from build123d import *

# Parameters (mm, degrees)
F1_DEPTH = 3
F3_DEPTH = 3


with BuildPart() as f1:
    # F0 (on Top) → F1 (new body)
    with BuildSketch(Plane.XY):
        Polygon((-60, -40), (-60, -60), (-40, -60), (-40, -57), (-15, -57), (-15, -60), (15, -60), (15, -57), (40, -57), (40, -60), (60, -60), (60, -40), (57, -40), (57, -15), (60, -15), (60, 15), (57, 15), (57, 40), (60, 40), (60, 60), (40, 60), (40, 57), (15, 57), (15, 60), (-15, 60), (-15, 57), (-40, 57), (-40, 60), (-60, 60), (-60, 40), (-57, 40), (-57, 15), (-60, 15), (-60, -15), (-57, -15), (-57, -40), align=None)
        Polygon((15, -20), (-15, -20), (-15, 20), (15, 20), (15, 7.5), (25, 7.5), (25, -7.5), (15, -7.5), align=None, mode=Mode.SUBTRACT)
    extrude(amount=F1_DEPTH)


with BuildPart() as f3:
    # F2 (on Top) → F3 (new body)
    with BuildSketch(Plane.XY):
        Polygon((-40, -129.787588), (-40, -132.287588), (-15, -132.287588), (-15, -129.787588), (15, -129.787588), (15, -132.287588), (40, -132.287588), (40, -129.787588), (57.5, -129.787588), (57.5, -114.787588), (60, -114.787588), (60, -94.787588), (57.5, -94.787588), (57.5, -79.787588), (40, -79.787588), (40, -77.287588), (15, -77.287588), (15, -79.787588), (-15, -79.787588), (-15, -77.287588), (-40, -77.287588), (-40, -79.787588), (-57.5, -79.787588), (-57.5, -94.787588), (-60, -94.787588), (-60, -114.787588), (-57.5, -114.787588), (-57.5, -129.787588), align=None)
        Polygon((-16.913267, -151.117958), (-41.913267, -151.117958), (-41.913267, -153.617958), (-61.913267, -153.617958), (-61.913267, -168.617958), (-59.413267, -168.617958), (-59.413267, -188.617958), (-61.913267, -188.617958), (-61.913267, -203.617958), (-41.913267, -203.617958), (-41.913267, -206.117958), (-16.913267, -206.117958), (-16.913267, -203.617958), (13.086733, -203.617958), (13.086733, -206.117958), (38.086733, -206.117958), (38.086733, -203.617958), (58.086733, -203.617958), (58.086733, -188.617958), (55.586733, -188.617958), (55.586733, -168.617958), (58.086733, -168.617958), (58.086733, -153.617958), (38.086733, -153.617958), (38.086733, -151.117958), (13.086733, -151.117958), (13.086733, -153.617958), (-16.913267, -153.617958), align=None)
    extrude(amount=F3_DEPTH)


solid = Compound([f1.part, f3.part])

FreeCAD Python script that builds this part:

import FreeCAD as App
import Part
import Sketcher

doc = App.newDocument("Part")
body = doc.addObject("PartDesign::Body", "Body")

# Sketch on XY plane
sketch1 = doc.addObject("Sketcher::SketchObject", "Sketch")
body.addObject(sketch1)
sketch1.AttachmentSupport = (doc.XY_Plane, [""])
sketch1.MapMode = "FlatFace"
sketch1.addGeometry([
    Part.LineSegment(App.Vector(-60, -40, 0), App.Vector(-60, -60, 0)),  # 0
    Part.LineSegment(App.Vector(-60, -60, 0), App.Vector(-40, -60, 0)),  # 1
    Part.LineSegment(App.Vector(-40, -60, 0), App.Vector(-40, -57, 0)),  # 2
    Part.LineSegment(App.Vector(-40, -57, 0), App.Vector(-15, -57, 0)),  # 3
    Part.LineSegment(App.Vector(-15, -57, 0), App.Vector(-15, -60, 0)),  # 4
    Part.LineSegment(App.Vector(-15, -60, 0), App.Vector(15, -60, 0)),  # 5
    Part.LineSegment(App.Vector(15, -60, 0), App.Vector(15, -57, 0)),  # 6
    Part.LineSegment(App.Vector(15, -57, 0), App.Vector(40, -57, 0)),  # 7
    Part.LineSegment(App.Vector(40, -57, 0), App.Vector(40, -60, 0)),  # 8
    Part.LineSegment(App.Vector(40, -60, 0), App.Vector(60, -60, 0)),  # 9
    Part.LineSegment(App.Vector(60, -60, 0), App.Vector(60, -40, 0)),  # 10
    Part.LineSegment(App.Vector(60, -40, 0), App.Vector(57, -40, 0)),  # 11
    Part.LineSegment(App.Vector(57, -40, 0), App.Vector(57, -15, 0)),  # 12
    Part.LineSegment(App.Vector(57, -15, 0), App.Vector(60, -15, 0)),  # 13
    Part.LineSegment(App.Vector(60, -15, 0), App.Vector(60, 15, 0)),  # 14
    Part.LineSegment(App.Vector(60, 15, 0), App.Vector(57, 15, 0)),  # 15
    Part.LineSegment(App.Vector(57, 15, 0), App.Vector(57, 40, 0)),  # 16
    Part.LineSegment(App.Vector(57, 40, 0), App.Vector(60, 40, 0)),  # 17
    Part.LineSegment(App.Vector(60, 40, 0), App.Vector(60, 60, 0)),  # 18
    Part.LineSegment(App.Vector(60, 60, 0), App.Vector(40, 60, 0)),  # 19
    Part.LineSegment(App.Vector(40, 60, 0), App.Vector(40, 57, 0)),  # 20
    Part.LineSegment(App.Vector(40, 57, 0), App.Vector(15, 57, 0)),  # 21
    Part.LineSegment(App.Vector(15, 57, 0), App.Vector(15, 60, 0)),  # 22
    Part.LineSegment(App.Vector(15, 60, 0), App.Vector(-15, 60, 0)),  # 23
    Part.LineSegment(App.Vector(-15, 60, 0), App.Vector(-15, 57, 0)),  # 24
    Part.LineSegment(App.Vector(-15, 57, 0), App.Vector(-40, 57, 0)),  # 25
    Part.LineSegment(App.Vector(-40, 57, 0), App.Vector(-40, 60, 0)),  # 26
    Part.LineSegment(App.Vector(-40, 60, 0), App.Vector(-60, 60, 0)),  # 27
    Part.LineSegment(App.Vector(-60, 60, 0), App.Vector(-60, 40, 0)),  # 28
    Part.LineSegment(App.Vector(-60, 40, 0), App.Vector(-57, 40, 0)),  # 29
    Part.LineSegment(App.Vector(-57, 40, 0), App.Vector(-57, 15, 0)),  # 30
    Part.LineSegment(App.Vector(-57, 15, 0), App.Vector(-60, 15, 0)),  # 31
    Part.LineSegment(App.Vector(-60, 15, 0), App.Vector(-60, -15, 0)),  # 32
    Part.LineSegment(App.Vector(-60, -15, 0), App.Vector(-57, -15, 0)),  # 33
    Part.LineSegment(App.Vector(-57, -15, 0), App.Vector(-57, -40, 0)),  # 34
    Part.LineSegment(App.Vector(-57, -40, 0), App.Vector(-60, -40, 0)),  # 35
    Part.LineSegment(App.Vector(15, -7.5, 0), App.Vector(15, -20, 0)),  # 36
    Part.LineSegment(App.Vector(15, -20, 0), App.Vector(-15, -20, 0)),  # 37
    Part.LineSegment(App.Vector(-15, -20, 0), App.Vector(-15, 20, 0)),  # 38
    Part.LineSegment(App.Vector(-15, 20, 0), App.Vector(15, 20, 0)),  # 39
    Part.LineSegment(App.Vector(15, 20, 0), App.Vector(15, 7.5, 0)),  # 40
    Part.LineSegment(App.Vector(15, 7.5, 0), App.Vector(25, 7.5, 0)),  # 41
    Part.LineSegment(App.Vector(25, 7.5, 0), App.Vector(25, -7.5, 0)),  # 42
    Part.LineSegment(App.Vector(25, -7.5, 0), App.Vector(15, -7.5, 0)),  # 43
], False)
sketch1.addConstraint([
    Sketcher.Constraint("Coincident", 0, 2, 1, 1),
    Sketcher.Constraint("Coincident", 1, 2, 2, 1),
    Sketcher.Constraint("Coincident", 2, 2, 3, 1),
    Sketcher.Constraint("Coincident", 3, 2, 4, 1),
    Sketcher.Constraint("Coincident", 4, 2, 5, 1),
    Sketcher.Constraint("Coincident", 5, 2, 6, 1),
    Sketcher.Constraint("Coincident", 6, 2, 7, 1),
    Sketcher.Constraint("Coincident", 7, 2, 8, 1),
    Sketcher.Constraint("Coincident", 8, 2, 9, 1),
    Sketcher.Constraint("Coincident", 9, 2, 10, 1),
    Sketcher.Constraint("Coincident", 10, 2, 11, 1),
    Sketcher.Constraint("Coincident", 11, 2, 12, 1),
    Sketcher.Constraint("Coincident", 12, 2, 13, 1),
    Sketcher.Constraint("Coincident", 13, 2, 14, 1),
    Sketcher.Constraint("Coincident", 14, 2, 15, 1),
    Sketcher.Constraint("Coincident", 15, 2, 16, 1),
    Sketcher.Constraint("Coincident", 16, 2, 17, 1),
    Sketcher.Constraint("Coincident", 17, 2, 18, 1),
    Sketcher.Constraint("Coincident", 18, 2, 19, 1),
    Sketcher.Constraint("Coincident", 19, 2, 20, 1),
    Sketcher.Constraint("Coincident", 20, 2, 21, 1),
    Sketcher.Constraint("Coincident", 21, 2, 22, 1),
    Sketcher.Constraint("Coincident", 22, 2, 23, 1),
    Sketcher.Constraint("Coincident", 23, 2, 24, 1),
    Sketcher.Constraint("Coincident", 24, 2, 25, 1),
    Sketcher.Constraint("Coincident", 25, 2, 26, 1),
    Sketcher.Constraint("Coincident", 26, 2, 27, 1),
    Sketcher.Constraint("Coincident", 27, 2, 28, 1),
    Sketcher.Constraint("Coincident", 28, 2, 29, 1),
    Sketcher.Constraint("Coincident", 29, 2, 30, 1),
    Sketcher.Constraint("Coincident", 30, 2, 31, 1),
    Sketcher.Constraint("Coincident", 31, 2, 32, 1),
    Sketcher.Constraint("Coincident", 32, 2, 33, 1),
    Sketcher.Constraint("Coincident", 33, 2, 34, 1),
    Sketcher.Constraint("Coincident", 34, 2, 35, 1),
    Sketcher.Constraint("Coincident", 35, 2, 0, 1),
    Sketcher.Constraint("Coincident", 36, 2, 37, 1),
    Sketcher.Constraint("Coincident", 37, 2, 38, 1),
    Sketcher.Constraint("Coincident", 38, 2, 39, 1),
    Sketcher.Constraint("Coincident", 39, 2, 40, 1),
    Sketcher.Constraint("Coincident", 40, 2, 41, 1),
    Sketcher.Constraint("Coincident", 41, 2, 42, 1),
    Sketcher.Constraint("Coincident", 42, 2, 43, 1),
    Sketcher.Constraint("Coincident", 43, 2, 36, 1),
    Sketcher.Constraint("Vertical", 0),
    Sketcher.Constraint("Horizontal", 1),
    Sketcher.Constraint("Vertical", 2),
    Sketcher.Constraint("Horizontal", 3),
    Sketcher.Constraint("Vertical", 4),
    Sketcher.Constraint("Horizontal", 5),
    Sketcher.Constraint("Vertical", 6),
    Sketcher.Constraint("Horizontal", 7),
    Sketcher.Constraint("Vertical", 8),
    Sketcher.Constraint("Horizontal", 9),
    Sketcher.Constraint("Vertical", 10),
    Sketcher.Constraint("Horizontal", 11),
    Sketcher.Constraint("Vertical", 12),
    Sketcher.Constraint("Horizontal", 13),
    Sketcher.Constraint("Vertical", 14),
    Sketcher.Constraint("Horizontal", 15),
    Sketcher.Constraint("Vertical", 16),
    Sketcher.Constraint("Horizontal", 17),
    Sketcher.Constraint("Vertical", 18),
    Sketcher.Constraint("Horizontal", 19),
    Sketcher.Constraint("Vertical", 20),
    Sketcher.Constraint("Horizontal", 21),
    Sketcher.Constraint("Vertical", 22),
    Sketcher.Constraint("Horizontal", 23),
    Sketcher.Constraint("Vertical", 24),
    Sketcher.Constraint("Horizontal", 25),
    Sketcher.Constraint("Vertical", 26),
    Sketcher.Constraint("Horizontal", 27),
    Sketcher.Constraint("Vertical", 28),
    Sketcher.Constraint("Horizontal", 29),
    Sketcher.Constraint("Vertical", 30),
    Sketcher.Constraint("Horizontal", 31),
    Sketcher.Constraint("Vertical", 32),
    Sketcher.Constraint("Horizontal", 33),
    Sketcher.Constraint("Vertical", 34),
    Sketcher.Constraint("Horizontal", 35),
    Sketcher.Constraint("Vertical", 36),
    Sketcher.Constraint("Horizontal", 37),
    Sketcher.Constraint("Vertical", 38),
    Sketcher.Constraint("Horizontal", 39),
    Sketcher.Constraint("Vertical", 40),
    Sketcher.Constraint("Horizontal", 41),
    Sketcher.Constraint("Vertical", 42),
    Sketcher.Constraint("Horizontal", 43),
    Sketcher.Constraint("Symmetric", 0, 2, 18, 2, -1, 1),
    Sketcher.Constraint("Symmetric", 2, 2, 20, 2, -1, 1),
    Sketcher.Constraint("Symmetric", 4, 2, 22, 2, -1, 1),
    Sketcher.Constraint("Symmetric", 6, 2, 24, 2, -1, 1),
    Sketcher.Constraint("Symmetric", 8, 2, 26, 2, -1, 1),
    Sketcher.Constraint("Symmetric", 10, 2, 28, 2, -1, 1),
    Sketcher.Constraint("Symmetric", 12, 2, 30, 2, -1, 1),
    Sketcher.Constraint("Symmetric", 14, 2, 32, 2, -1, 1),
    Sketcher.Constraint("Symmetric", 16, 2, 34, 2, -1, 1),
    Sketcher.Constraint("Symmetric", 36, 2, 38, 2, -1, 1),
    Sketcher.Constraint("Symmetric", 3, 2, 6, 2, -2),
    Sketcher.Constraint("Symmetric", 1, 2, 8, 2, -2),
    Sketcher.Constraint("Symmetric", 17, 2, 28, 2, -2),
    Sketcher.Constraint("Symmetric", 15, 2, 30, 2, -2),
    Sketcher.Constraint("Symmetric", 40, 2, 43, 2, -1),
    Sketcher.Constraint("Horizontal", 1, 2, 4, 2),
    Sketcher.Constraint("Vertical", 10, 2, 13, 2),
    Sketcher.Constraint("Vertical", 22, 2, 36, 2),
    Sketcher.Constraint("Equal", 27, 0),
    Sketcher.Constraint("Equal", 35, 2),
    Sketcher.Constraint("Equal", 25, 12),
    Sketcher.Constraint("Equal", 39, 14),
    Sketcher.Constraint("DistanceX", 1, 1, 1, 2, 20.0),
    Sketcher.Constraint("DistanceX", 3, 1, 3, 2, 25.0),
    Sketcher.Constraint("DistanceX", 5, 1, 5, 2, 30.0),
    Sketcher.Constraint("DistanceX", 11, 2, 11, 1, 3.0),
    Sketcher.Constraint("DistanceX", 41, 1, 41, 2, 10.0),
    Sketcher.Constraint("DistanceY", 38, 1, 38, 2, 40.0),
    Sketcher.Constraint("DistanceY", 42, 2, 42, 1, 15.0),
])
pad1 = doc.addObject("PartDesign::Pad", "Pad")
body.addObject(pad1)
pad1.Profile = sketch1
pad1.Length = 3
body2 = doc.addObject("PartDesign::Body", "Body001")
body2.AllowCompound = True

# Sketch on XY plane
sketch2 = doc.addObject("Sketcher::SketchObject", "Sketch001")
body2.addObject(sketch2)
sketch2.AttachmentSupport = (doc.getObject("XY_Plane001"), [""])
sketch2.MapMode = "FlatFace"
sketch2.addGeometry([
    Part.LineSegment(App.Vector(-40, -129.8, 0), App.Vector(-40, -132.3, 0)),  # 0
    Part.LineSegment(App.Vector(-40, -132.3, 0), App.Vector(-15, -132.3, 0)),  # 1
    Part.LineSegment(App.Vector(-15, -132.3, 0), App.Vector(-15, -129.8, 0)),  # 2
    Part.LineSegment(App.Vector(-15, -129.8, 0), App.Vector(15, -129.8, 0)),  # 3
    Part.LineSegment(App.Vector(15, -129.8, 0), App.Vector(15, -132.3, 0)),  # 4
    Part.LineSegment(App.Vector(15, -132.3, 0), App.Vector(40, -132.3, 0)),  # 5
    Part.LineSegment(App.Vector(40, -132.3, 0), App.Vector(40, -129.8, 0)),  # 6
    Part.LineSegment(App.Vector(40, -129.8, 0), App.Vector(57.5, -129.8, 0)),  # 7
    Part.LineSegment(App.Vector(57.5, -129.8, 0), App.Vector(57.5, -114.8, 0)),  # 8
    Part.LineSegment(App.Vector(57.5, -114.8, 0), App.Vector(60, -114.8, 0)),  # 9
    Part.LineSegment(App.Vector(60, -114.8, 0), App.Vector(60, -94.8, 0)),  # 10
    Part.LineSegment(App.Vector(60, -94.8, 0), App.Vector(57.5, -94.8, 0)),  # 11
    Part.LineSegment(App.Vector(57.5, -94.8, 0), App.Vector(57.5, -79.8, 0)),  # 12
    Part.LineSegment(App.Vector(57.5, -79.8, 0), App.Vector(40, -79.8, 0)),  # 13
    Part.LineSegment(App.Vector(40, -79.8, 0), App.Vector(40, -77.3, 0)),  # 14
    Part.LineSegment(App.Vector(40, -77.3, 0), App.Vector(15, -77.3, 0)),  # 15
    Part.LineSegment(App.Vector(15, -77.3, 0), App.Vector(15, -79.8, 0)),  # 16
    Part.LineSegment(App.Vector(15, -79.8, 0), App.Vector(-15, -79.8, 0)),  # 17
    Part.LineSegment(App.Vector(-15, -79.8, 0), App.Vector(-15, -77.3, 0)),  # 18
    Part.LineSegment(App.Vector(-15, -77.3, 0), App.Vector(-40, -77.3, 0)),  # 19
    Part.LineSegment(App.Vector(-40, -77.3, 0), App.Vector(-40, -79.8, 0)),  # 20
    Part.LineSegment(App.Vector(-40, -79.8, 0), App.Vector(-57.5, -79.8, 0)),  # 21
    Part.LineSegment(App.Vector(-57.5, -79.8, 0), App.Vector(-57.5, -94.8, 0)),  # 22
    Part.LineSegment(App.Vector(-57.5, -94.8, 0), App.Vector(-60, -94.8, 0)),  # 23
    Part.LineSegment(App.Vector(-60, -94.8, 0), App.Vector(-60, -114.8, 0)),  # 24
    Part.LineSegment(App.Vector(-60, -114.8, 0), App.Vector(-57.5, -114.8, 0)),  # 25
    Part.LineSegment(App.Vector(-57.5, -114.8, 0), App.Vector(-57.5, -129.8, 0)),  # 26
    Part.LineSegment(App.Vector(-57.5, -129.8, 0), App.Vector(-40, -129.8, 0)),  # 27
    Part.LineSegment(App.Vector(-16.9, -151.1, 0), App.Vector(-41.9, -151.1, 0)),  # 28
    Part.LineSegment(App.Vector(-41.9, -151.1, 0), App.Vector(-41.9, -153.6, 0)),  # 29
    Part.LineSegment(App.Vector(-41.9, -153.6, 0), App.Vector(-61.9, -153.6, 0)),  # 30
    Part.LineSegment(App.Vector(-61.9, -153.6, 0), App.Vector(-61.9, -168.6, 0)),  # 31
    Part.LineSegment(App.Vector(-61.9, -168.6, 0), App.Vector(-59.4, -168.6, 0)),  # 32
    Part.LineSegment(App.Vector(-59.4, -168.6, 0), App.Vector(-59.4, -188.6, 0)),  # 33
    Part.LineSegment(App.Vector(-59.4, -188.6, 0), App.Vector(-61.9, -188.6, 0)),  # 34
    Part.LineSegment(App.Vector(-61.9, -188.6, 0), App.Vector(-61.9, -203.6, 0)),  # 35
    Part.LineSegment(App.Vector(-61.9, -203.6, 0), App.Vector(-41.9, -203.6, 0)),  # 36
    Part.LineSegment(App.Vector(-41.9, -203.6, 0), App.Vector(-41.9, -206.1, 0)),  # 37
    Part.LineSegment(App.Vector(-41.9, -206.1, 0), App.Vector(-16.9, -206.1, 0)),  # 38
    Part.LineSegment(App.Vector(-16.9, -206.1, 0), App.Vector(-16.9, -203.6, 0)),  # 39
    Part.LineSegment(App.Vector(-16.9, -203.6, 0), App.Vector(13.1, -203.6, 0)),  # 40
    Part.LineSegment(App.Vector(13.1, -203.6, 0), App.Vector(13.1, -206.1, 0)),  # 41
    Part.LineSegment(App.Vector(13.1, -206.1, 0), App.Vector(38.1, -206.1, 0)),  # 42
    Part.LineSegment(App.Vector(38.1, -206.1, 0), App.Vector(38.1, -203.6, 0)),  # 43
    Part.LineSegment(App.Vector(38.1, -203.6, 0), App.Vector(58.1, -203.6, 0)),  # 44
    Part.LineSegment(App.Vector(58.1, -203.6, 0), App.Vector(58.1, -188.6, 0)),  # 45
    Part.LineSegment(App.Vector(58.1, -188.6, 0), App.Vector(55.6, -188.6, 0)),  # 46
    Part.LineSegment(App.Vector(55.6, -188.6, 0), App.Vector(55.6, -168.6, 0)),  # 47
    Part.LineSegment(App.Vector(55.6, -168.6, 0), App.Vector(58.1, -168.6, 0)),  # 48
    Part.LineSegment(App.Vector(58.1, -168.6, 0), App.Vector(58.1, -153.6, 0)),  # 49
    Part.LineSegment(App.Vector(58.1, -153.6, 0), App.Vector(38.1, -153.6, 0)),  # 50
    Part.LineSegment(App.Vector(38.1, -153.6, 0), App.Vector(38.1, -151.1, 0)),  # 51
    Part.LineSegment(App.Vector(38.1, -151.1, 0), App.Vector(13.1, -151.1, 0)),  # 52
    Part.LineSegment(App.Vector(13.1, -151.1, 0), App.Vector(13.1, -153.6, 0)),  # 53
    Part.LineSegment(App.Vector(13.1, -153.6, 0), App.Vector(-16.9, -153.6, 0)),  # 54
    Part.LineSegment(App.Vector(-16.9, -153.6, 0), App.Vector(-16.9, -151.1, 0)),  # 55
], False)
sketch2.addConstraint([
    Sketcher.Constraint("Coincident", 0, 2, 1, 1),
    Sketcher.Constraint("Coincident", 1, 2, 2, 1),
    Sketcher.Constraint("Coincident", 2, 2, 3, 1),
    Sketcher.Constraint("Coincident", 3, 2, 4, 1),
    Sketcher.Constraint("Coincident", 4, 2, 5, 1),
    Sketcher.Constraint("Coincident", 5, 2, 6, 1),
    Sketcher.Constraint("Coincident", 6, 2, 7, 1),
    Sketcher.Constraint("Coincident", 7, 2, 8, 1),
    Sketcher.Constraint("Coincident", 8, 2, 9, 1),
    Sketcher.Constraint("Coincident", 9, 2, 10, 1),
    Sketcher.Constraint("Coincident", 10, 2, 11, 1),
    Sketcher.Constraint("Coincident", 11, 2, 12, 1),
    Sketcher.Constraint("Coincident", 12, 2, 13, 1),
    Sketcher.Constraint("Coincident", 13, 2, 14, 1),
    Sketcher.Constraint("Coincident", 14, 2, 15, 1),
    Sketcher.Constraint("Coincident", 15, 2, 16, 1),
    Sketcher.Constraint("Coincident", 16, 2, 17, 1),
    Sketcher.Constraint("Coincident", 17, 2, 18, 1),
    Sketcher.Constraint("Coincident", 18, 2, 19, 1),
    Sketcher.Constraint("Coincident", 19, 2, 20, 1),
    Sketcher.Constraint("Coincident", 20, 2, 21, 1),
    Sketcher.Constraint("Coincident", 21, 2, 22, 1),
    Sketcher.Constraint("Coincident", 22, 2, 23, 1),
    Sketcher.Constraint("Coincident", 23, 2, 24, 1),
    Sketcher.Constraint("Coincident", 24, 2, 25, 1),
    Sketcher.Constraint("Coincident", 25, 2, 26, 1),
    Sketcher.Constraint("Coincident", 26, 2, 27, 1),
    Sketcher.Constraint("Coincident", 27, 2, 0, 1),
    Sketcher.Constraint("Coincident", 28, 2, 29, 1),
    Sketcher.Constraint("Coincident", 29, 2, 30, 1),
    Sketcher.Constraint("Coincident", 30, 2, 31, 1),
    Sketcher.Constraint("Coincident", 31, 2, 32, 1),
    Sketcher.Constraint("Coincident", 32, 2, 33, 1),
    Sketcher.Constraint("Coincident", 33, 2, 34, 1),
    Sketcher.Constraint("Coincident", 34, 2, 35, 1),
    Sketcher.Constraint("Coincident", 35, 2, 36, 1),
    Sketcher.Constraint("Coincident", 36, 2, 37, 1),
    Sketcher.Constraint("Coincident", 37, 2, 38, 1),
    Sketcher.Constraint("Coincident", 38, 2, 39, 1),
    Sketcher.Constraint("Coincident", 39, 2, 40, 1),
    Sketcher.Constraint("Coincident", 40, 2, 41, 1),
    Sketcher.Constraint("Coincident", 41, 2, 42, 1),
    Sketcher.Constraint("Coincident", 42, 2, 43, 1),
    Sketcher.Constraint("Coincident", 43, 2, 44, 1),
    Sketcher.Constraint("Coincident", 44, 2, 45, 1),
    Sketcher.Constraint("Coincident", 45, 2, 46, 1),
    Sketcher.Constraint("Coincident", 46, 2, 47, 1),
    Sketcher.Constraint("Coincident", 47, 2, 48, 1),
    Sketcher.Constraint("Coincident", 48, 2, 49, 1),
    Sketcher.Constraint("Coincident", 49, 2, 50, 1),
    Sketcher.Constraint("Coincident", 50, 2, 51, 1),
    Sketcher.Constraint("Coincident", 51, 2, 52, 1),
    Sketcher.Constraint("Coincident", 52, 2, 53, 1),
    Sketcher.Constraint("Coincident", 53, 2, 54, 1),
    Sketcher.Constraint("Coincident", 54, 2, 55, 1),
    Sketcher.Constraint("Coincident", 55, 2, 28, 1),
    Sketcher.Constraint("Vertical", 0),
    Sketcher.Constraint("Horizontal", 1),
    Sketcher.Constraint("Vertical", 2),
    Sketcher.Constraint("Horizontal", 3),
    Sketcher.Constraint("Vertical", 4),
    Sketcher.Constraint("Horizontal", 5),
    Sketcher.Constraint("Vertical", 6),
    Sketcher.Constraint("Horizontal", 7),
    Sketcher.Constraint("Vertical", 8),
    Sketcher.Constraint("Horizontal", 9),
    Sketcher.Constraint("Vertical", 10),
    Sketcher.Constraint("Horizontal", 11),
    Sketcher.Constraint("Vertical", 12),
    Sketcher.Constraint("Horizontal", 13),
    Sketcher.Constraint("Vertical", 14),
    Sketcher.Constraint("Horizontal", 15),
    Sketcher.Constraint("Vertical", 16),
    Sketcher.Constraint("Horizontal", 17),
    Sketcher.Constraint("Vertical", 18),
    Sketcher.Constraint("Horizontal", 19),
    Sketcher.Constraint("Vertical", 20),
    Sketcher.Constraint("Horizontal", 21),
    Sketcher.Constraint("Vertical", 22),
    Sketcher.Constraint("Horizontal", 23),
    Sketcher.Constraint("Vertical", 24),
    Sketcher.Constraint("Horizontal", 25),
    Sketcher.Constraint("Vertical", 26),
    Sketcher.Constraint("Horizontal", 27),
    Sketcher.Constraint("Horizontal", 28),
    Sketcher.Constraint("Vertical", 29),
    Sketcher.Constraint("Horizontal", 30),
    Sketcher.Constraint("Vertical", 31),
    Sketcher.Constraint("Horizontal", 32),
    Sketcher.Constraint("Vertical", 33),
    Sketcher.Constraint("Horizontal", 34),
    Sketcher.Constraint("Vertical", 35),
    Sketcher.Constraint("Horizontal", 36),
    Sketcher.Constraint("Vertical", 37),
    Sketcher.Constraint("Horizontal", 38),
    Sketcher.Constraint("Vertical", 39),
    Sketcher.Constraint("Horizontal", 40),
    Sketcher.Constraint("Vertical", 41),
    Sketcher.Constraint("Horizontal", 42),
    Sketcher.Constraint("Vertical", 43),
    Sketcher.Constraint("Horizontal", 44),
    Sketcher.Constraint("Vertical", 45),
    Sketcher.Constraint("Horizontal", 46),
    Sketcher.Constraint("Vertical", 47),
    Sketcher.Constraint("Horizontal", 48),
    Sketcher.Constraint("Vertical", 49),
    Sketcher.Constraint("Horizontal", 50),
    Sketcher.Constraint("Vertical", 51),
    Sketcher.Constraint("Horizontal", 52),
    Sketcher.Constraint("Vertical", 53),
    Sketcher.Constraint("Horizontal", 54),
    Sketcher.Constraint("Vertical", 55),
    Sketcher.Constraint("Symmetric", 1, 2, 4, 2, -2),
    Sketcher.Constraint("Symmetric", 15, 2, 18, 2, -2),
    Sketcher.Constraint("Symmetric", 13, 2, 20, 2, -2),
    Sketcher.Constraint("Symmetric", 11, 2, 22, 2, -2),
    Sketcher.Constraint("Symmetric", 9, 2, 24, 2, -2),
    Sketcher.Constraint("Symmetric", 7, 2, 26, 2, -2),
    Sketcher.Constraint("Horizontal", 3, 2, 6, 2),
    Sketcher.Constraint("Horizontal", 13, 2, 16, 2),
    Sketcher.Constraint("Horizontal", 36, 2, 39, 2),
    Sketcher.Constraint("Horizontal", 38, 2, 41, 2),
    Sketcher.Constraint("Horizontal", 40, 2, 43, 2),
    Sketcher.Constraint("Horizontal", 34, 2, 45, 2),
    Sketcher.Constraint("Horizontal", 32, 2, 47, 2),
    Sketcher.Constraint("Horizontal", 30, 2, 49, 2),
    Sketcher.Constraint("Horizontal", 28, 2, 51, 2),
    Sketcher.Constraint("Horizontal", 50, 2, 53, 2),
    Sketcher.Constraint("Vertical", 8, 2, 11, 2),
    Sketcher.Constraint("Vertical", 6, 2, 13, 2),
    Sketcher.Constraint("Vertical", 4, 2, 15, 2),
    Sketcher.Constraint("Vertical", 0, 2, 19, 2),
    Sketcher.Constraint("Vertical", 31, 2, 34, 2),
    Sketcher.Constraint("Vertical", 29, 2, 36, 2),
    Sketcher.Constraint("Vertical", 45, 2, 48, 2),
    Sketcher.Constraint("Vertical", 43, 2, 50, 2),
    Sketcher.Constraint("Vertical", 41, 2, 52, 2),
    Sketcher.Constraint("Vertical", 39, 2, 54, 2),
    Sketcher.Constraint("Equal", 19, 28),
    Sketcher.Constraint("Equal", 25, 32),
    Sketcher.Constraint("Equal", 17, 40),
    Sketcher.Constraint("Equal", 38, 42),
    Sketcher.Constraint("Equal", 36, 44),
    Sketcher.Constraint("Equal", 34, 46),
    Sketcher.Constraint("Equal", 48, 0),
    Sketcher.Constraint("Equal", 50, 10),
    Sketcher.Constraint("Equal", 8, 12),
    Sketcher.Constraint("Equal", 6, 14),
    Sketcher.Constraint("Equal", 20, 29),
    Sketcher.Constraint("Equal", 26, 31),
    Sketcher.Constraint("Equal", 24, 33),
    Sketcher.Constraint("Equal", 31, 35),
    Sketcher.Constraint("Equal", 29, 37),
    Sketcher.Constraint("DistanceX", 1, 1, 1, 2, 25.0),
    Sketcher.Constraint("DistanceX", 3, 1, 3, 2, 30.0),
    Sketcher.Constraint("DistanceX", 30, 2, 30, 1, 20.0),
    Sketcher.Constraint("DistanceY", 8, 1, 8, 2, 15.0),
    Sketcher.Constraint("DistanceX", 7, 1, 7, 2, 17.5),
    Sketcher.Constraint("DistanceX", 9, 1, 9, 2, 2.5),
    Sketcher.Constraint("DistanceY", 0, 2, -1, 1, 132.287588),
    Sketcher.Constraint("DistanceY", 28, 2, 0, 2, 18.83037),
    Sketcher.Constraint("DistanceX", 28, 2, -1, 1, 41.913267),
])
pad2 = doc.addObject("PartDesign::Pad", "Pad001")
body2.addObject(pad2)
pad2.Profile = sketch2
pad2.Length = 3

doc.recompute()
